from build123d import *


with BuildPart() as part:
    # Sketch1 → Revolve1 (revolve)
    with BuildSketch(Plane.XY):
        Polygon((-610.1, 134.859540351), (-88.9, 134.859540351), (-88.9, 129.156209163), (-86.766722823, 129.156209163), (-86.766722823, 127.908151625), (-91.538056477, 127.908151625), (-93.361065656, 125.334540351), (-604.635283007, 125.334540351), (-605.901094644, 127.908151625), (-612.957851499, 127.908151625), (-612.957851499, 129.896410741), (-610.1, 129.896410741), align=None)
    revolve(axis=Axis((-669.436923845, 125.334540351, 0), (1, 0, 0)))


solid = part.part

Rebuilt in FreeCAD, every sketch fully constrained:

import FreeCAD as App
import Part
import Sketcher

V = App.Vector


def add_polygon(sketch, points):
    """Adds a closed chain of lines whose ends are joined by coincident constraints."""
    first, n = sketch.GeometryCount, len(points)
    for a, b in zip(points, points[1:] + points[:1]):
        sketch.addGeometry(Part.LineSegment(App.Vector(*a, 0), App.Vector(*b, 0)), False)
    for i in range(n):
        sketch.addConstraint(Sketcher.Constraint("Coincident", first + i, 2, first + (i + 1) % n, 1))

doc = App.newDocument("Part")
params = doc.addObject("Spreadsheet::Sheet", "Params")
for row, (alias, value) in enumerate([
    ("sketch1_width", "521.2 mm"),
    ("revolution_angle", "360 deg"),
], start=1):
    params.set(f"A{row}", alias)
    params.set(f"B{row}", "=" + value)
    params.setAlias(f"B{row}", alias)

body = doc.addObject("PartDesign::Body", "Body")

# Sketch on XY plane
sketch1 = body.newObject("Sketcher::SketchObject", "Sketch")
sketch1.AttachmentSupport = (doc.getObject("XY_Plane"), [""])
sketch1.MapMode = "FlatFace"
add_polygon(sketch1, [(-88.9, 134.85954), (-610.1, 134.85954), (-610.1, 129.896411), (-612.957851, 129.896411), (-612.957851, 127.908152), (-605.901095, 127.908152), (-604.635283, 125.33454), (-93.361066, 125.33454), (-91.538056, 127.908152), (-86.766723, 127.908152), (-86.766723, 129.156209), (-88.9, 129.156209)])  # lines 0-11
sketch1.addGeometry(Part.LineSegment(V(-612.957851, 125.33454, 0), V(-86.766723, 125.33454, 0)), True)  # axis
sketch1.addConstraint([
    Sketcher.Constraint("Horizontal", 0),
    Sketcher.Constraint("Vertical", 1),
    Sketcher.Constraint("Horizontal", 2),
    Sketcher.Constraint("Vertical", 3),
    Sketcher.Constraint("Horizontal", 4),
    Sketcher.Constraint("Horizontal", 6),
    Sketcher.Constraint("Horizontal", 8),
    Sketcher.Constraint("Vertical", 9),
    Sketcher.Constraint("Horizontal", 10),
    Sketcher.Constraint("Vertical", 11),
    Sketcher.Constraint("Horizontal", 12),
    Sketcher.Constraint("Horizontal", 4, 2, 7, 2),
    Sketcher.Constraint("Horizontal", 6, 2, 12, 1),
    Sketcher.Constraint("Vertical", 3, 2, 12, 1),
    Sketcher.Constraint("Vertical", 9, 2, 12, 2),
    Sketcher.Constraint("DistanceX", 0, 2, 0, 1, 521.2),
    Sketcher.Constraint("DistanceX", 0, 2, -1, 1, 610.1),
    Sketcher.Constraint("DistanceY", 5, 2, 0, 2, 9.525),
    Sketcher.Constraint("DistanceX", 2, 2, 2, 1, 2.857851),
    Sketcher.Constraint("DistanceX", 12, 1, 12, 2, 526.191129),
    Sketcher.Constraint("DistanceY", 1, 2, 1, 1, 4.96313),
    Sketcher.Constraint("DistanceY", 3, 2, 3, 1, 1.988259),
    Sketcher.Constraint("DistanceY", 11, 1, 11, 2, 5.703331),
    Sketcher.Constraint("Distance", 7, 3.153861),
    Sketcher.Constraint("DistanceX", 4, 1, 4, 2, 7.056757),
    Sketcher.Constraint("DistanceX", 6, 1, 6, 2, 511.274217),
    Sketcher.Constraint("DistanceX", 8, 1, 8, 2, 4.771334),
    Sketcher.Constraint("DistanceY", -1, 1, 0, 2, 134.85954),
])
sketch1.setExpression("Constraints[27]", "Params.sketch1_width")
revolution = body.newObject("PartDesign::Revolution", "Revolution")
revolution.Profile = sketch1
revolution.ReferenceAxis = (sketch1, ["Axis0"])
revolution.setExpression("Angle", "Params.revolution_angle")

doc.recompute()
